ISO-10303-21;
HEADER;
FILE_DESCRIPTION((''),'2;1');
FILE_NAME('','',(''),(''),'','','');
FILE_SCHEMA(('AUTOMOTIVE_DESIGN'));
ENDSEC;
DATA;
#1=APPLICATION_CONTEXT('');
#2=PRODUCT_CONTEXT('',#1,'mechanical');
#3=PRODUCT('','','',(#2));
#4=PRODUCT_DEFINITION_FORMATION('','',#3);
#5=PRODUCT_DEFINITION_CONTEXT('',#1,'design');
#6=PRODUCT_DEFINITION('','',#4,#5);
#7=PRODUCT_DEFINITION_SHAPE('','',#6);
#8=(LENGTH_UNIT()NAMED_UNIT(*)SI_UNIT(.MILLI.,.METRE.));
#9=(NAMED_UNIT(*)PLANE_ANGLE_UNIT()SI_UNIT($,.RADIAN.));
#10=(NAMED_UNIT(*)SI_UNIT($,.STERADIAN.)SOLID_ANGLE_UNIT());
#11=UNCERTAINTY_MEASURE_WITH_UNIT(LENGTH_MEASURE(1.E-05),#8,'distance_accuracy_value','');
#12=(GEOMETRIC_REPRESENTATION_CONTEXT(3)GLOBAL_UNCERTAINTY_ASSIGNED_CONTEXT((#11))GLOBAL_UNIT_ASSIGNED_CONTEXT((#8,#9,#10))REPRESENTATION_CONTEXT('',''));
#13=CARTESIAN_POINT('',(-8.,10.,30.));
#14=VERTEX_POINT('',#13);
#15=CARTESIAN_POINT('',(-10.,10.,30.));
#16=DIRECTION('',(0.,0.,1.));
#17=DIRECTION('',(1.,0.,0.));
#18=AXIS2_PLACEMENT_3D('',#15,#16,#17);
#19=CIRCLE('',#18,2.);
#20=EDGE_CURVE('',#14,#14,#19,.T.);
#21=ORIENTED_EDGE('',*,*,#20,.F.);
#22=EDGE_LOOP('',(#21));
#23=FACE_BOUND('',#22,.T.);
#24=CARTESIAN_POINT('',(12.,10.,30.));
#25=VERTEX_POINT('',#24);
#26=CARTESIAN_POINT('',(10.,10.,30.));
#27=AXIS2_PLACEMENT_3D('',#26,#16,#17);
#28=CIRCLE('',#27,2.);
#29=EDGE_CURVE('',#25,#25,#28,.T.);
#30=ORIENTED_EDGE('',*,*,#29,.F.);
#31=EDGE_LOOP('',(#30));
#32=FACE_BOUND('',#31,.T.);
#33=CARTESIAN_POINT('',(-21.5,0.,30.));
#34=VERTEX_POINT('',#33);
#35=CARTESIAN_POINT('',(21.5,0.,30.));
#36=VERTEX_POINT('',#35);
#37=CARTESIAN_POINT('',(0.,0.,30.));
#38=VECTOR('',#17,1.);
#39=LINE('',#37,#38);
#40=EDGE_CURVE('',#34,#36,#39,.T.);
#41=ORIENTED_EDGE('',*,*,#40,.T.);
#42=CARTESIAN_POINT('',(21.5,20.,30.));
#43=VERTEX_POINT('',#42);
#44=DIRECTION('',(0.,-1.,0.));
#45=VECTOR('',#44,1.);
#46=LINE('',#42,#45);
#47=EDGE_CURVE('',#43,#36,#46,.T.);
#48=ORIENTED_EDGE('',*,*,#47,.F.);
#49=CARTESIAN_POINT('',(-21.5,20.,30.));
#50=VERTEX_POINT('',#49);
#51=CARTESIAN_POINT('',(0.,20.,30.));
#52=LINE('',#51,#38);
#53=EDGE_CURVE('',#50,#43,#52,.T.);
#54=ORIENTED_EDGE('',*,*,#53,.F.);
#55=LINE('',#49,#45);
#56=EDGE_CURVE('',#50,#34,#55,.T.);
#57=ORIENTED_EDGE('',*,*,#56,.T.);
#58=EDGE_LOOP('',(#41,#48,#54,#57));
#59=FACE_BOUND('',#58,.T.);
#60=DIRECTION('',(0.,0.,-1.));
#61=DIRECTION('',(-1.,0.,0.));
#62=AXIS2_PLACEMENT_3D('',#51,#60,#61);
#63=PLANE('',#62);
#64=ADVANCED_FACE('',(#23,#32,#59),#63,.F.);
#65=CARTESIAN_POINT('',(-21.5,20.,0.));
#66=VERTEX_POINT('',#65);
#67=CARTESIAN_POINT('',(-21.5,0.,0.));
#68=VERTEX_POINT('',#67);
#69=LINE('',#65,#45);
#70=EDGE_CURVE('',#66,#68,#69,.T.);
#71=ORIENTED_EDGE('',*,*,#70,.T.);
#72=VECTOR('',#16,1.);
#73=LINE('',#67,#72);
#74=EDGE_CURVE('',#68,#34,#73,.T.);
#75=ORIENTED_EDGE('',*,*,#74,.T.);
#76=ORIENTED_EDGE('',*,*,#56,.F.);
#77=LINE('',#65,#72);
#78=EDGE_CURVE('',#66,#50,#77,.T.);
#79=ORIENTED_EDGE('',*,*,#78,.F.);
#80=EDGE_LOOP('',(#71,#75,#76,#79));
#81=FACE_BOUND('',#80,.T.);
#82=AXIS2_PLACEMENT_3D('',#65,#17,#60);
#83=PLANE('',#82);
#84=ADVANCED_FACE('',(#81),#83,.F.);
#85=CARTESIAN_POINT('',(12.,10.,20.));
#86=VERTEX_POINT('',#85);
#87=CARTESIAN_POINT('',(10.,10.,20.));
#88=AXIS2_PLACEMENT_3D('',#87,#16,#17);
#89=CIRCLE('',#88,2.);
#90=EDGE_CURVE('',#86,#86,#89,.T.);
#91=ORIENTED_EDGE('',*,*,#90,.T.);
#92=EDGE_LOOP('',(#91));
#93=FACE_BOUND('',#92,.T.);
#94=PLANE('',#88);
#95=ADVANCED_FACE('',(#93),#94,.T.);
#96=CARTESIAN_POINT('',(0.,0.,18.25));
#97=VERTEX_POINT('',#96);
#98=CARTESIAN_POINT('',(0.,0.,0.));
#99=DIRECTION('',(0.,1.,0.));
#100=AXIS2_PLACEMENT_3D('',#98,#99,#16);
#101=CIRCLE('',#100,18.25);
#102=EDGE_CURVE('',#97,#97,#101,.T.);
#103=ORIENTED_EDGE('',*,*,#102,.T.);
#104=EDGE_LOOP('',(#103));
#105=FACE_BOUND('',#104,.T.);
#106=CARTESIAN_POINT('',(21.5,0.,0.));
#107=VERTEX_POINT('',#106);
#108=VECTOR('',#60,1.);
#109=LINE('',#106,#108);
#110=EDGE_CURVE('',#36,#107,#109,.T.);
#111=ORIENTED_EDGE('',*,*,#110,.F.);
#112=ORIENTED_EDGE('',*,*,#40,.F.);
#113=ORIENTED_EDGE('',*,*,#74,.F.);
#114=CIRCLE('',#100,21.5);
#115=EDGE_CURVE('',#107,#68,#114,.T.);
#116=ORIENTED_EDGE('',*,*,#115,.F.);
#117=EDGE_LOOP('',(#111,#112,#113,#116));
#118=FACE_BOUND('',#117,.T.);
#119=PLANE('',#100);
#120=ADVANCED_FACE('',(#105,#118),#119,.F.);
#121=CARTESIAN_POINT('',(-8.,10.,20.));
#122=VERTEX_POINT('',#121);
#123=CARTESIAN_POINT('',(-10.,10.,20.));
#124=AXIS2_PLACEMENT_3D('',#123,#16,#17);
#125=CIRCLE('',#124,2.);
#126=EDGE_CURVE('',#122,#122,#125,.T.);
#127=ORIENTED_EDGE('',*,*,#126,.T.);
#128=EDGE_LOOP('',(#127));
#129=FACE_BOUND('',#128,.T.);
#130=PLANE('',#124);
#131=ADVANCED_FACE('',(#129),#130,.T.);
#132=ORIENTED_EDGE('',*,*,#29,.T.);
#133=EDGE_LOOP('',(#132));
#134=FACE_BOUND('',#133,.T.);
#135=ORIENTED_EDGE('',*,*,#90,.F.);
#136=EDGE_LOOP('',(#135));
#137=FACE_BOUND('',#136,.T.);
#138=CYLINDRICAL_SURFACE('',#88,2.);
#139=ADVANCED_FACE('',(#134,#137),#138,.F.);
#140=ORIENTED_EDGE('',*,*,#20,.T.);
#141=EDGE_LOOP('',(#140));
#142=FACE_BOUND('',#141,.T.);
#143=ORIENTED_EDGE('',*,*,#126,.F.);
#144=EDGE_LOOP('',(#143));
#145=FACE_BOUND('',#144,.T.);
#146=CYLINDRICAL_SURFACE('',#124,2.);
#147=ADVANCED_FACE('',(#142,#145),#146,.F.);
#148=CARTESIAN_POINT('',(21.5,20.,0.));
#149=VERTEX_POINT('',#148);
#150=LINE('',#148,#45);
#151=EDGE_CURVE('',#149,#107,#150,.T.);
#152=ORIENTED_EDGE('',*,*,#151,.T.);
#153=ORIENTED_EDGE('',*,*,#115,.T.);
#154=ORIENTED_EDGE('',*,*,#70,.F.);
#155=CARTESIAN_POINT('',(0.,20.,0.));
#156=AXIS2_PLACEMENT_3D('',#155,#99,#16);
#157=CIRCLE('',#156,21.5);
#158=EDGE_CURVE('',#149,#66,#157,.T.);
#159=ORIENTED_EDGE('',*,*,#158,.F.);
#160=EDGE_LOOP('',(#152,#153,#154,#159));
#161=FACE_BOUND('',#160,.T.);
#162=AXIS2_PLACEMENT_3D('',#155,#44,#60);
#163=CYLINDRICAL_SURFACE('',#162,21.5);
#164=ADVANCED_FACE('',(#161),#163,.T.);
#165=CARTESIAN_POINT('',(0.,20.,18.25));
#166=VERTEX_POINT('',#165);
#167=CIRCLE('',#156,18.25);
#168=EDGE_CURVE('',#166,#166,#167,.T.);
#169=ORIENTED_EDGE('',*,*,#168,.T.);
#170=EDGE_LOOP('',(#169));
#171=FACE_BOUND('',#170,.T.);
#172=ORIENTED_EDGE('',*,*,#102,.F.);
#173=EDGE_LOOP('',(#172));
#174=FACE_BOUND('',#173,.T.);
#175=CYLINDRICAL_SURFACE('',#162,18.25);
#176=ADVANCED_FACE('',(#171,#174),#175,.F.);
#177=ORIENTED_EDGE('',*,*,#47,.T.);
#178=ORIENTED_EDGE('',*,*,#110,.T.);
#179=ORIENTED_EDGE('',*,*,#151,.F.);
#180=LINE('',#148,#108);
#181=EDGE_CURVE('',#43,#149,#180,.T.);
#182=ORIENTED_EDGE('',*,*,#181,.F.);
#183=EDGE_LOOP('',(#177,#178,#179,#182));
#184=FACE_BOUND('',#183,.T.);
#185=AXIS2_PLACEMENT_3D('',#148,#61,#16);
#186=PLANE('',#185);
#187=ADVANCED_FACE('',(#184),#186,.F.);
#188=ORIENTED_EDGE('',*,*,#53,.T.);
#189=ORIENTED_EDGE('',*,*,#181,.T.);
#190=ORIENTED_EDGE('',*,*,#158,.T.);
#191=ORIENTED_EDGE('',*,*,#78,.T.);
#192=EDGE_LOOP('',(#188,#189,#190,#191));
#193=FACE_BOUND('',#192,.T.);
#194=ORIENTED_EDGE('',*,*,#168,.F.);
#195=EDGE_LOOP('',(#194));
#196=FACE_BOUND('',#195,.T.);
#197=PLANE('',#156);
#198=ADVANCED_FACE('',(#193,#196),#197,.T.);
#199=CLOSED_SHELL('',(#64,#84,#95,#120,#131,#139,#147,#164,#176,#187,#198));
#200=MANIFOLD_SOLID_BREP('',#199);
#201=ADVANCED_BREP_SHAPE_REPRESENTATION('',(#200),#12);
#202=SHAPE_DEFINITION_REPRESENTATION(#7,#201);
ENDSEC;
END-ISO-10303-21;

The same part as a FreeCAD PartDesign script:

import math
import FreeCAD as App
import Part
import Sketcher

V = App.Vector

doc = App.newDocument("Part")
body = doc.addObject("PartDesign::Body", "Body")

# Sketch on XZ plane
sketch1 = body.newObject("Sketcher::SketchObject", "Sketch")
sketch1.AttachmentSupport = (doc.getObject("XZ_Plane"), [""])
sketch1.MapMode = "FlatFace"
sketch1.addGeometry(Part.LineSegment(V(-22, 0, 0), V(-22, 30, 0)), False)
sketch1.addGeometry(Part.LineSegment(V(-22, 30, 0), V(22, 30, 0)), False)
sketch1.addGeometry(Part.LineSegment(V(22, 30, 0), V(22, 0, 0)), False)
sketch1.addGeometry(Part.ArcOfCircle(Part.Circle(V(0, 0, 0), V(0, 0, 1), 22), math.radians(180), math.radians(360)), False)
sketch1.addGeometry(Part.Circle(V(0, 0, 0), V(0, 0, 1), 18), False)
sketch1.addConstraint(Sketcher.Constraint("Coincident", 0, 2, 1, 1))
sketch1.addConstraint(Sketcher.Constraint("Coincident", 1, 2, 2, 1))
sketch1.addConstraint(Sketcher.Constraint("Tangent", 2, 2, 3, 2))
sketch1.addConstraint(Sketcher.Constraint("Tangent", 3, 1, 0, 1))
sketch1.addConstraint(Sketcher.Constraint("Vertical", 0))
sketch1.addConstraint(Sketcher.Constraint("Horizontal", 1))
sketch1.addConstraint(Sketcher.Constraint("Vertical", 2))
sketch1.addConstraint(Sketcher.Constraint("Coincident", 3, 3, -1, 1))
sketch1.addConstraint(Sketcher.Constraint("Coincident", 4, 3, -1, 1))
sketch1.addConstraint(Sketcher.Constraint("Diameter", 4, 36.5))
sketch1.addConstraint(Sketcher.Constraint("Radius", 3, 21.5))
sketch1.addConstraint(Sketcher.Constraint("DistanceY", 0, 1, 0, 2, 30.0))
pad1 = body.newObject("PartDesign::Pad", "Pad")
pad1.Profile = sketch1
pad1.Length = 20
pad1.Reversed = True

# Sketch on XY plane
sketch2 = body.newObject("Sketcher::SketchObject", "Sketch001")
sketch2.AttachmentSupport = (doc.getObject("XY_Plane"), [""])
sketch2.MapMode = "FlatFace"
sketch2.AttachmentOffset = App.Placement(V(0, 0, 30), App.Rotation())
sketch2.addGeometry(Part.Circle(V(-10, 10, 0), V(0, 0, 1), 2), False)
sketch2.addGeometry(Part.Circle(V(10, 10, 0), V(0, 0, 1), 2), False)
sketch2.addConstraint(Sketcher.Constraint("Equal", 0, 1))
sketch2.addConstraint(Sketcher.Constraint("Symmetric", 0, 3, 1, 3, -2))
sketch2.addConstraint(Sketcher.Constraint("Diameter", 0, 4.0))
sketch2.addConstraint(Sketcher.Constraint("DistanceX", 0, 3, -1, 1, 10.0))
sketch2.addConstraint(Sketcher.Constraint("DistanceY", -1, 1, 0, 3, 10.0))
pocket1 = body.newObject("PartDesign::Pocket", "Pocket")
pocket1.Profile = sketch2
pocket1.Length = 10

doc.recompute()
